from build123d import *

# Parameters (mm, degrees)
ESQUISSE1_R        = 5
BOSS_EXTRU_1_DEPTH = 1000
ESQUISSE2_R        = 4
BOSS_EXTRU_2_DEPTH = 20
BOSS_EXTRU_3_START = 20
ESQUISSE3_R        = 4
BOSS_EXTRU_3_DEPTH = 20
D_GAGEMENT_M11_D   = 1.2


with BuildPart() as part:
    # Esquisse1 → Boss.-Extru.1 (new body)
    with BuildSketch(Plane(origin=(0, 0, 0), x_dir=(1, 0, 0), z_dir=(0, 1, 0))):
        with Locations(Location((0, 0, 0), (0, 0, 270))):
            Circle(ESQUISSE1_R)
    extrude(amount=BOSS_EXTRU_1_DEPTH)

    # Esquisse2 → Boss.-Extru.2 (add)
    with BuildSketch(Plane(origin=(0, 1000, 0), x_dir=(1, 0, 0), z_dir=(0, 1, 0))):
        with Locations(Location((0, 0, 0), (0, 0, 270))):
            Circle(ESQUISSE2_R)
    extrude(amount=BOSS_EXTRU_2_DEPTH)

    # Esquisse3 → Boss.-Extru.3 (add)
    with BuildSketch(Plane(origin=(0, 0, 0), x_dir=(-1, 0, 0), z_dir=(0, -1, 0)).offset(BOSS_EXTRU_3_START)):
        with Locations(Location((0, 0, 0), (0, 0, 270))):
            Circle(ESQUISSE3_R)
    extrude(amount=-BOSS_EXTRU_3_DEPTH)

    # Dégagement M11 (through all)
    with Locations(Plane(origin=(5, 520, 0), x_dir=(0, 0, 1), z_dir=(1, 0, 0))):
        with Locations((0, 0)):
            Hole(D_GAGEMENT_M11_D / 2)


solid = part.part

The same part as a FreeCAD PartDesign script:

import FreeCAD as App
import Part
import Sketcher

V = App.Vector
Q = App.Units.Quantity

doc = App.newDocument("Part")
body = doc.addObject("PartDesign::Body", "Body")

# Sketch on XZ plane
sketch1 = body.newObject("Sketcher::SketchObject", "Sketch")
sketch1.AttachmentSupport = (doc.getObject("XZ_Plane"), [""])
sketch1.MapMode = "FlatFace"
sketch1.addGeometry(Part.Circle(V(0, 0, 0), V(0, 0, 1), 5), False)
sketch1.addConstraint(Sketcher.Constraint("Coincident", 0, 3, -1, 1))
sketch1.addConstraint(Sketcher.Constraint("Diameter", 0, Q("10 mm")))
pad1 = body.newObject("PartDesign::Pad", "Pad")
pad1.Profile = sketch1
pad1.Length = 1000
pad1.Reversed = True

# Sketch on XZ plane
sketch2 = body.newObject("Sketcher::SketchObject", "Sketch001")
sketch2.AttachmentSupport = (doc.getObject("XZ_Plane"), [""])
sketch2.MapMode = "FlatFace"
sketch2.AttachmentOffset = App.Placement(V(0, 0, -1000), App.Rotation())
sketch2.addGeometry(Part.Circle(V(0, 0, 0), V(0, 0, 1), 4), False)
sketch2.addConstraint(Sketcher.Constraint("Coincident", 0, 3, -1, 1))
sketch2.addConstraint(Sketcher.Constraint("Diameter", 0, Q("8 mm")))
pad2 = body.newObject("PartDesign::Pad", "Pad001")
pad2.Profile = sketch2
pad2.Length = 20
pad2.Reversed = True

# Sketch on XZ plane
sketch3 = body.newObject("Sketcher::SketchObject", "Sketch002")
sketch3.AttachmentSupport = (doc.getObject("XZ_Plane"), [""])
sketch3.MapMode = "FlatFace"
sketch3.AttachmentOffset = App.Placement(V(0, 0, 20), App.Rotation())
sketch3.addGeometry(Part.Circle(V(0, 0, 0), V(0, 0, 1), 4), False)
sketch3.addConstraint(Sketcher.Constraint("Coincident", 0, 3, -1, 1))
sketch3.addConstraint(Sketcher.Constraint("Diameter", 0, Q("8 mm")))
pad3 = body.newObject("PartDesign::Pad", "Pad002")
pad3.Profile = sketch3
pad3.Length = 20
pad3.Reversed = True

# Sketch on YZ plane
sketch4 = body.newObject("Sketcher::SketchObject", "Sketch003")
sketch4.AttachmentSupport = (doc.getObject("YZ_Plane"), [""])
sketch4.MapMode = "FlatFace"
sketch4.AttachmentOffset = App.Placement(V(0, 0, 5), App.Rotation())
sketch4.addGeometry(Part.Circle(V(520, 0, 0), V(0, 0, 1), 0.6), False)
sketch4.addConstraint(Sketcher.Constraint("PointOnObject", 0, 3, -1))
sketch4.addConstraint(Sketcher.Constraint("Diameter", 0, Q("1.2 mm")))
sketch4.addConstraint(Sketcher.Constraint("DistanceX", -1, 1, 0, 3, Q("520 mm")))
doc.recompute()
hole = body.newObject("PartDesign::Hole", "Hole")
hole.Profile = sketch4
hole.ThreadType = "None"
hole.Diameter = 1.2
hole.DepthType = "ThroughAll"

doc.recompute()
